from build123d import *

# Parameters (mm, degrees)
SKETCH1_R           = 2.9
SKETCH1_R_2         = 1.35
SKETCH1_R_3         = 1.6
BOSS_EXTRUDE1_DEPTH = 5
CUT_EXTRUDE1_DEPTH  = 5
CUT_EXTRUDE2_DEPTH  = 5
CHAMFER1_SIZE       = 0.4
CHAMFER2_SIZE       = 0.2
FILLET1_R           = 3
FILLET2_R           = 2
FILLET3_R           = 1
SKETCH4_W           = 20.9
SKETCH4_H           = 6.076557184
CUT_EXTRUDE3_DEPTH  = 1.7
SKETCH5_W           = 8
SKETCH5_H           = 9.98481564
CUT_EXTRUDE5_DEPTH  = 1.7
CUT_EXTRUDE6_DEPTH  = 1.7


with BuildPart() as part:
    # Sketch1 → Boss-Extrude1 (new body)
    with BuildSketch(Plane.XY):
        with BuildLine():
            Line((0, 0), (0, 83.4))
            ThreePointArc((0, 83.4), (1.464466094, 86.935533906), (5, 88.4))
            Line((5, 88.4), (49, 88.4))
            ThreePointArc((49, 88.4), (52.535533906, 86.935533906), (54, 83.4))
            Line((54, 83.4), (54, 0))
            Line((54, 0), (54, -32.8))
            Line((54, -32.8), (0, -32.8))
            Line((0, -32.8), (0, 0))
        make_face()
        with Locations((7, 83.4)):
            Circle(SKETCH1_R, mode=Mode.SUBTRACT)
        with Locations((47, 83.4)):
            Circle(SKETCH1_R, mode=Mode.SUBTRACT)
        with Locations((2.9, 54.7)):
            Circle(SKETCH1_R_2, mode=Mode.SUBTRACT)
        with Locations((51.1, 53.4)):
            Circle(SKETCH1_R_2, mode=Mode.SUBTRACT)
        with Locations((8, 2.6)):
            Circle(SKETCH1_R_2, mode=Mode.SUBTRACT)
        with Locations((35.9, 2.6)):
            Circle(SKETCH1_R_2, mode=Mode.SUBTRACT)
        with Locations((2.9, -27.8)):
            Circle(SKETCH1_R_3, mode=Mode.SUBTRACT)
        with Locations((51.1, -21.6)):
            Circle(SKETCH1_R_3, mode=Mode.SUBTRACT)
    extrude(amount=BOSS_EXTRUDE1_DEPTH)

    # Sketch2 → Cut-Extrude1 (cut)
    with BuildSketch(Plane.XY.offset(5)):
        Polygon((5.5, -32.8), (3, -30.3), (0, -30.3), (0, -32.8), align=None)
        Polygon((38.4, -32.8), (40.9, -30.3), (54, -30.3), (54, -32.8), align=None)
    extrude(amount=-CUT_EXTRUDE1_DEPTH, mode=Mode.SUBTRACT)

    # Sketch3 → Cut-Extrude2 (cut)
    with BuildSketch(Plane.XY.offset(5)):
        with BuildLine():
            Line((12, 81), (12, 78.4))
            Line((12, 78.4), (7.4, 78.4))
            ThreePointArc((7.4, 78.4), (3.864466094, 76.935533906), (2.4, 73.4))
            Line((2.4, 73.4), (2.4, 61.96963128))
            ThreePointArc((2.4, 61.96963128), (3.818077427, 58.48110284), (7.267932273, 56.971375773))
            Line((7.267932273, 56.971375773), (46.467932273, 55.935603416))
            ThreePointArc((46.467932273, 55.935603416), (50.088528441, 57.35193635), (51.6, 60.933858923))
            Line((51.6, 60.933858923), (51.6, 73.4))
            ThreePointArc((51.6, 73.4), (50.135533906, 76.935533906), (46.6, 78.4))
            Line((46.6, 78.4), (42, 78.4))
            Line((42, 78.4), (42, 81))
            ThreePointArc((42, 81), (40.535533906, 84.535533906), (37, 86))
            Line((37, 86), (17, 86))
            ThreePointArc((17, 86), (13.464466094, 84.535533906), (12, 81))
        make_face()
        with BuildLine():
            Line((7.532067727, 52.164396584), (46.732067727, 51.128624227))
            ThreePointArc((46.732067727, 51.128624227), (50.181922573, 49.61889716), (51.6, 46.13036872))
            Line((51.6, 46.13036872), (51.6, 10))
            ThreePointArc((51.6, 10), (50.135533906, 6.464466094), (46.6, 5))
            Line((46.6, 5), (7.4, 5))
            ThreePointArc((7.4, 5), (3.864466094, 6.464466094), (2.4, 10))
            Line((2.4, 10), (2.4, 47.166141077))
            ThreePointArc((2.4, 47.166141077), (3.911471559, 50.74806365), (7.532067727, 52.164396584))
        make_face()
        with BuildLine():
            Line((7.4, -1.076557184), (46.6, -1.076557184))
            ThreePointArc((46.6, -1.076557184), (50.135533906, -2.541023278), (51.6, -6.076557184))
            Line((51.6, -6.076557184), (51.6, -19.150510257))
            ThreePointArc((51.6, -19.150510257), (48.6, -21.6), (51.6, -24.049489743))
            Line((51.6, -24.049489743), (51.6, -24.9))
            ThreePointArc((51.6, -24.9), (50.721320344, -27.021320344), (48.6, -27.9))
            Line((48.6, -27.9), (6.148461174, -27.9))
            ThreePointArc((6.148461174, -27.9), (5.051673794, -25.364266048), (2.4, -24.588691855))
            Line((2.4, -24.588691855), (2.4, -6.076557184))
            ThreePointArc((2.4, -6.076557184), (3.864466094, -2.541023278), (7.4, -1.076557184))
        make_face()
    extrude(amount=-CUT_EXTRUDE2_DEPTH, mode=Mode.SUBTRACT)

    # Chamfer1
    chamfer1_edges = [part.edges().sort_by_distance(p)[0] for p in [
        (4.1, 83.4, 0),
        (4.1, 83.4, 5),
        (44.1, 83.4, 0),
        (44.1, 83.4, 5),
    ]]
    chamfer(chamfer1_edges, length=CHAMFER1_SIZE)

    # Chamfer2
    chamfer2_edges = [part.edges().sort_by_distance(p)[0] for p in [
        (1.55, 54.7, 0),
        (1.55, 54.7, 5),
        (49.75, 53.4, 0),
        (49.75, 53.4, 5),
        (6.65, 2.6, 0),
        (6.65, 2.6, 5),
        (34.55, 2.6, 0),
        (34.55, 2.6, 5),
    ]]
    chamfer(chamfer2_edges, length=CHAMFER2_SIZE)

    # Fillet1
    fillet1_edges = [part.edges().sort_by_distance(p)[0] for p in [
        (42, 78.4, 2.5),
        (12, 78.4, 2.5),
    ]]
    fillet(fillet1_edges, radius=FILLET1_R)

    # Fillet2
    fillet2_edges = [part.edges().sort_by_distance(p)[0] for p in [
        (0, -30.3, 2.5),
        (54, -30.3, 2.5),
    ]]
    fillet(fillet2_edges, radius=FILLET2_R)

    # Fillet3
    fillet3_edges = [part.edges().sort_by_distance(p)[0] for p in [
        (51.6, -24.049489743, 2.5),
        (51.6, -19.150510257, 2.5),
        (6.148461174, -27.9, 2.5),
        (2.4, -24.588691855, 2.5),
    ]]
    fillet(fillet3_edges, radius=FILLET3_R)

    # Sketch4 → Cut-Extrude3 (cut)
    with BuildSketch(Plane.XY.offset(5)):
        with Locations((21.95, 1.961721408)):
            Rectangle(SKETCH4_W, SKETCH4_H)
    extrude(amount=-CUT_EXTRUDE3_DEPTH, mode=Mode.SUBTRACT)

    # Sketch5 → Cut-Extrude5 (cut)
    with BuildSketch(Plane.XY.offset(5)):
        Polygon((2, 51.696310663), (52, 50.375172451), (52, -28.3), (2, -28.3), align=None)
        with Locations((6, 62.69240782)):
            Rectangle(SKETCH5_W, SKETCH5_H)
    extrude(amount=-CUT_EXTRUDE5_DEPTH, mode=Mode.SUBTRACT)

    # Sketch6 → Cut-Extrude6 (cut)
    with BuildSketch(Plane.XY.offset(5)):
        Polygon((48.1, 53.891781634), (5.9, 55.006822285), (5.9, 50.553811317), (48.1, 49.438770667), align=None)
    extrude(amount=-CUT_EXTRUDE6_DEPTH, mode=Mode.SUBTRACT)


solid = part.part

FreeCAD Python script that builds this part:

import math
import FreeCAD as App
import Part
import Sketcher
from FreeCAD import Vector
Q = App.Units.Quantity


def edges_at(feature, points):
    """Names of the edges that pass closest to the given points."""
    edges = feature.Shape.Edges
    near = lambda p: min(range(len(edges)), key=lambda i: edges[i].distToShape(Part.Vertex(*p))[0])
    return sorted({f"Edge{near(p) + 1}" for p in points})

doc = App.newDocument("Part")
body = doc.addObject("PartDesign::Body", "Body")

# Sketch on XY plane
sketch1 = doc.addObject("Sketcher::SketchObject", "Sketch")
body.addObject(sketch1)
sketch1.AttachmentSupport = (doc.XY_Plane, [""])
sketch1.MapMode = "FlatFace"
sketch1.addGeometry(Part.ArcOfCircle(Part.Circle(Vector(5, 83.4, 0), Vector(0, 0, 1), 5), math.radians(90), math.radians(180)), False)
sketch1.addGeometry(Part.LineSegment(Vector(0, 83.4, 0), Vector(0, -32.8, 0)), False)
sketch1.addGeometry(Part.LineSegment(Vector(0, -32.8, 0), Vector(54, -32.8, 0)), False)
sketch1.addGeometry(Part.LineSegment(Vector(54, -32.8, 0), Vector(54, 83.4, 0)), False)
sketch1.addGeometry(Part.ArcOfCircle(Part.Circle(Vector(49, 83.4, 0), Vector(0, 0, 1), 5), math.radians(0), math.radians(90)), False)
sketch1.addGeometry(Part.LineSegment(Vector(49, 88.4, 0), Vector(5, 88.4, 0)), False)
sketch1.addGeometry(Part.Circle(Vector(51.1, -21.6, 0), Vector(0, 0, 1), 1.6), False)
sketch1.addGeometry(Part.Circle(Vector(35.9, 2.6, 0), Vector(0, 0, 1), 1.4), False)
sketch1.addGeometry(Part.Circle(Vector(2.9, -27.8, 0), Vector(0, 0, 1), 1.6), False)
sketch1.addGeometry(Part.Circle(Vector(8, 2.6, 0), Vector(0, 0, 1), 1.4), False)
sketch1.addGeometry(Part.Circle(Vector(51.1, 53.4, 0), Vector(0, 0, 1), 1.4), False)
sketch1.addGeometry(Part.Circle(Vector(47, 83.4, 0), Vector(0, 0, 1), 2.9), False)
sketch1.addGeometry(Part.Circle(Vector(2.9, 54.7, 0), Vector(0, 0, 1), 1.4), False)
sketch1.addGeometry(Part.Circle(Vector(7, 83.4, 0), Vector(0, 0, 1), 2.9), False)
sketch1.addConstraint(Sketcher.Constraint("Tangent", 0, 2, 1, 1))
sketch1.addConstraint(Sketcher.Constraint("Coincident", 1, 2, 2, 1))
sketch1.addConstraint(Sketcher.Constraint("Coincident", 2, 2, 3, 1))
sketch1.addConstraint(Sketcher.Constraint("Tangent", 3, 2, 4, 1))
sketch1.addConstraint(Sketcher.Constraint("Tangent", 4, 2, 5, 1))
sketch1.addConstraint(Sketcher.Constraint("Tangent", 5, 2, 0, 1))
sketch1.addConstraint(Sketcher.Constraint("Vertical", 1))
sketch1.addConstraint(Sketcher.Constraint("Horizontal", 2))
sketch1.addConstraint(Sketcher.Constraint("Vertical", 3))
sketch1.addConstraint(Sketcher.Constraint("Horizontal", 5))
sketch1.addConstraint(Sketcher.Constraint("Equal", 0, 4))
sketch1.addConstraint(Sketcher.Constraint("Equal", 6, 8))
sketch1.addConstraint(Sketcher.Constraint("Equal", 7, 9))
sketch1.addConstraint(Sketcher.Constraint("Equal", 9, 10))
sketch1.addConstraint(Sketcher.Constraint("Equal", 10, 12))
sketch1.addConstraint(Sketcher.Constraint("Equal", 11, 13))
sketch1.addConstraint(Sketcher.Constraint("PointOnObject", 0, 2, -2))
sketch1.addConstraint(Sketcher.Constraint("Horizontal", 7, 3, 9, 3))
sketch1.addConstraint(Sketcher.Constraint("Horizontal", 4, 3, 11, 3))
sketch1.addConstraint(Sketcher.Constraint("Horizontal", 11, 3, 13, 3))
sketch1.addConstraint(Sketcher.Constraint("Vertical", 6, 3, 10, 3))
sketch1.addConstraint(Sketcher.Constraint("Vertical", 8, 3, 12, 3))
sketch1.addConstraint(Sketcher.Constraint("Radius", 0, Q("5 mm")))
sketch1.addConstraint(Sketcher.Constraint("Diameter", 6, Q("3.2 mm")))
sketch1.addConstraint(Sketcher.Constraint("Diameter", 7, Q("2.7 mm")))
sketch1.addConstraint(Sketcher.Constraint("Diameter", 11, Q("5.8 mm")))
sketch1.addConstraint(Sketcher.Constraint("DistanceX", 2, 1, 2, 2, Q("54 mm")))
sketch1.addConstraint(Sketcher.Constraint("DistanceY", 1, 2, 1, 1, Q("116.2 mm")))
sketch1.addConstraint(Sketcher.Constraint("DistanceX", -1, 1, 9, 3, Q("8 mm")))
sketch1.addConstraint(Sketcher.Constraint("DistanceX", -1, 1, 11, 3, Q("47 mm")))
sketch1.addConstraint(Sketcher.Constraint("DistanceX", -1, 1, 13, 3, Q("7 mm")))
sketch1.addConstraint(Sketcher.Constraint("DistanceY", 6, 3, 4, 3, Q("105 mm")))
sketch1.addConstraint(Sketcher.Constraint("DistanceX", 8, 3, 7, 3, Q("33 mm")))
sketch1.addConstraint(Sketcher.Constraint("DistanceY", 10, 3, 4, 3, Q("30 mm")))
sketch1.addConstraint(Sketcher.Constraint("DistanceY", 1, 2, 8, 3, Q("5 mm")))
sketch1.addConstraint(Sketcher.Constraint("DistanceY", -1, 1, 0, 3, Q("83.4 mm")))
sketch1.addConstraint(Sketcher.Constraint("DistanceX", -1, 1, 6, 3, Q("51.1 mm")))
sketch1.addConstraint(Sketcher.Constraint("DistanceX", -1, 1, 7, 3, Q("35.9 mm")))
sketch1.addConstraint(Sketcher.Constraint("DistanceY", -1, 1, 7, 3, Q("2.6 mm")))
sketch1.addConstraint(Sketcher.Constraint("DistanceY", -1, 1, 12, 3, Q("54.7 mm")))
pad1 = doc.addObject("PartDesign::Pad", "Pad")
body.addObject(pad1)
pad1.Profile = sketch1
pad1.Length = 5

# Sketch on XY plane
sketch2 = doc.addObject("Sketcher::SketchObject", "Sketch001")
body.addObject(sketch2)
sketch2.AttachmentSupport = (doc.XY_Plane, [""])
sketch2.MapMode = "FlatFace"
sketch2.AttachmentOffset = App.Placement(Vector(0, 0, 5), App.Rotation())
sketch2.addGeometry(Part.LineSegment(Vector(5.5, -32.8, 0), Vector(3, -30.3, 0)), False)
sketch2.addGeometry(Part.LineSegment(Vector(3, -30.3, 0), Vector(0, -30.3, 0)), False)
sketch2.addGeometry(Part.LineSegment(Vector(0, -30.3, 0), Vector(0, -32.8, 0)), False)
sketch2.addGeometry(Part.LineSegment(Vector(0, -32.8, 0), Vector(5.5, -32.8, 0)), False)
sketch2.addGeometry(Part.LineSegment(Vector(40.9, -30.3, 0), Vector(38.4, -32.8, 0)), False)
sketch2.addGeometry(Part.LineSegment(Vector(38.4, -32.8, 0), Vector(54, -32.8, 0)), False)
sketch2.addGeometry(Part.LineSegment(Vector(54, -32.8, 0), Vector(54, -30.3, 0)), False)
sketch2.addGeometry(Part.LineSegment(Vector(54, -30.3, 0), Vector(40.9, -30.3, 0)), False)
sketch2.addConstraint(Sketcher.Constraint("Coincident", 0, 2, 1, 1))
sketch2.addConstraint(Sketcher.Constraint("Coincident", 1, 2, 2, 1))
sketch2.addConstraint(Sketcher.Constraint("Coincident", 2, 2, 3, 1))
sketch2.addConstraint(Sketcher.Constraint("Coincident", 3, 2, 0, 1))
sketch2.addConstraint(Sketcher.Constraint("Coincident", 4, 2, 5, 1))
sketch2.addConstraint(Sketcher.Constraint("Coincident", 5, 2, 6, 1))
sketch2.addConstraint(Sketcher.Constraint("Coincident", 6, 2, 7, 1))
sketch2.addConstraint(Sketcher.Constraint("Coincident", 7, 2, 4, 1))
sketch2.addConstraint(Sketcher.Constraint("Horizontal", 1))
sketch2.addConstraint(Sketcher.Constraint("Vertical", 2))
sketch2.addConstraint(Sketcher.Constraint("Horizontal", 3))
sketch2.addConstraint(Sketcher.Constraint("Horizontal", 5))
sketch2.addConstraint(Sketcher.Constraint("Vertical", 6))
sketch2.addConstraint(Sketcher.Constraint("Horizontal", 7))
sketch2.addConstraint(Sketcher.Constraint("PointOnObject", 1, 2, -2))
sketch2.addConstraint(Sketcher.Constraint("Perpendicular", 0, 4))
sketch2.addConstraint(Sketcher.Constraint("Horizontal", 3, 2, 4, 2))
sketch2.addConstraint(Sketcher.Constraint("Horizontal", 1, 2, 6, 2))
sketch2.addConstraint(Sketcher.Constraint("Equal", 0, 4))
sketch2.addConstraint(Sketcher.Constraint("DistanceX", 1, 2, 1, 1, Q("3 mm")))
sketch2.addConstraint(Sketcher.Constraint("DistanceX", 3, 1, 3, 2, Q("5.5 mm")))
sketch2.addConstraint(Sketcher.Constraint("DistanceX", 5, 1, 5, 2, Q("15.6 mm")))
sketch2.addConstraint(Sketcher.Constraint("DistanceX", -1, 1, 5, 2, Q("54 mm")))
sketch2.addConstraint(Sketcher.Constraint("DistanceY", 0, 2, -1, 1, Q("30.3 mm")))
pocket1 = doc.addObject("PartDesign::Pocket", "Pocket")
body.addObject(pocket1)
pocket1.Profile = sketch2
pocket1.Length = 5

# Sketch on XY plane
sketch3 = doc.addObject("Sketcher::SketchObject", "Sketch002")
body.addObject(sketch3)
sketch3.AttachmentSupport = (doc.XY_Plane, [""])
sketch3.MapMode = "FlatFace"
sketch3.AttachmentOffset = App.Placement(Vector(0, 0, 5), App.Rotation())
sketch3.addGeometry(Part.LineSegment(Vector(12, 81, 0), Vector(12, 78.4, 0)), False)
sketch3.addGeometry(Part.LineSegment(Vector(12, 78.4, 0), Vector(7.4, 78.4, 0)), False)
sketch3.addGeometry(Part.ArcOfCircle(Part.Circle(Vector(7.4, 73.4, 0), Vector(0, 0, 1), 5), math.radians(90), math.radians(180)), False)
sketch3.addGeometry(Part.LineSegment(Vector(2.4, 73.4, 0), Vector(2.4, 62, 0)), False)
sketch3.addGeometry(Part.ArcOfCircle(Part.Circle(Vector(7.4, 62, 0), Vector(0, 0, 1), 5), math.radians(-180), math.radians(-92)), False)
sketch3.addGeometry(Part.LineSegment(Vector(7.3, 57, 0), Vector(46.5, 55.9, 0)), False)
sketch3.addGeometry(Part.ArcOfCircle(Part.Circle(Vector(46.6, 60.9, 0), Vector(0, 0, 1), 5), math.radians(-92), math.radians(0)), False)
sketch3.addGeometry(Part.LineSegment(Vector(51.6, 60.9, 0), Vector(51.6, 73.4, 0)), False)
sketch3.addGeometry(Part.ArcOfCircle(Part.Circle(Vector(46.6, 73.4, 0), Vector(0, 0, 1), 5), math.radians(0), math.radians(90)), False)
sketch3.addGeometry(Part.LineSegment(Vector(46.6, 78.4, 0), Vector(42, 78.4, 0)), False)
sketch3.addGeometry(Part.LineSegment(Vector(42, 78.4, 0), Vector(42, 81, 0)), False)
sketch3.addGeometry(Part.ArcOfCircle(Part.Circle(Vector(37, 81, 0), Vector(0, 0, 1), 5), math.radians(0), math.radians(90)), False)
sketch3.addGeometry(Part.LineSegment(Vector(37, 86, 0), Vector(17, 86, 0)), False)
sketch3.addGeometry(Part.ArcOfCircle(Part.Circle(Vector(17, 81, 0), Vector(0, 0, 1), 5), math.radians(90), math.radians(180)), False)
sketch3.addGeometry(Part.LineSegment(Vector(46.7, 51.1, 0), Vector(7.5, 52.2, 0)), False)
sketch3.addGeometry(Part.ArcOfCircle(Part.Circle(Vector(7.4, 47.2, 0), Vector(0, 0, 1), 5), math.radians(88), math.radians(180)), False)
sketch3.addGeometry(Part.LineSegment(Vector(2.4, 47.2, 0), Vector(2.4, 10, 0)), False)
sketch3.addGeometry(Part.ArcOfCircle(Part.Circle(Vector(7.4, 10, 0), Vector(0, 0, 1), 5), math.radians(180), math.radians(270)), False)
sketch3.addGeometry(Part.LineSegment(Vector(7.4, 5, 0), Vector(46.6, 5, 0)), False)
sketch3.addGeometry(Part.ArcOfCircle(Part.Circle(Vector(46.6, 10, 0), Vector(0, 0, 1), 5), math.radians(-90), math.radians(0)), False)
sketch3.addGeometry(Part.LineSegment(Vector(51.6, 10, 0), Vector(51.6, 46.1, 0)), False)
sketch3.addGeometry(Part.ArcOfCircle(Part.Circle(Vector(46.6, 46.1, 0), Vector(0, 0, 1), 5), math.radians(0), math.radians(88)), False)
sketch3.addGeometry(Part.LineSegment(Vector(46.6, -1.1, 0), Vector(7.4, -1.1, 0)), False)
sketch3.addGeometry(Part.ArcOfCircle(Part.Circle(Vector(7.4, -6.1, 0), Vector(0, 0, 1), 5), math.radians(90), math.radians(180)), False)
sketch3.addGeometry(Part.LineSegment(Vector(2.4, -6.1, 0), Vector(2.4, -24.6, 0)), False)
sketch3.addGeometry(Part.ArcOfCircle(Part.Circle(Vector(2.9, -27.8, 0), Vector(0, 0, 1), 3.2), math.radians(-2), math.radians(99)), False)
sketch3.addGeometry(Part.LineSegment(Vector(6.1, -27.9, 0), Vector(48.6, -27.9, 0)), False)
sketch3.addGeometry(Part.ArcOfCircle(Part.Circle(Vector(48.6, -24.9, 0), Vector(0, 0, 1), 3), math.radians(-90), math.radians(0)), False)
sketch3.addGeometry(Part.LineSegment(Vector(51.6, -24.9, 0), Vector(51.6, -24, 0)), False)
sketch3.addGeometry(Part.ArcOfCircle(Part.Circle(Vector(51.1, -21.6, 0), Vector(0, 0, 1), 2.5), math.radians(78), math.radians(282)), False)
sketch3.addGeometry(Part.LineSegment(Vector(51.6, -19.2, 0), Vector(51.6, -6.1, 0)), False)
sketch3.addGeometry(Part.ArcOfCircle(Part.Circle(Vector(46.6, -6.1, 0), Vector(0, 0, 1), 5), math.radians(0), math.radians(90)), False)
sketch3.addConstraint(Sketcher.Constraint("Coincident", 0, 2, 1, 1))
sketch3.addConstraint(Sketcher.Constraint("Tangent", 1, 2, 2, 1))
sketch3.addConstraint(Sketcher.Constraint("Tangent", 2, 2, 3, 1))
sketch3.addConstraint(Sketcher.Constraint("Tangent", 3, 2, 4, 1))
sketch3.addConstraint(Sketcher.Constraint("Tangent", 4, 2, 5, 1))
sketch3.addConstraint(Sketcher.Constraint("Tangent", 5, 2, 6, 1))
sketch3.addConstraint(Sketcher.Constraint("Tangent", 6, 2, 7, 1))
sketch3.addConstraint(Sketcher.Constraint("Tangent", 7, 2, 8, 1))
sketch3.addConstraint(Sketcher.Constraint("Tangent", 8, 2, 9, 1))
sketch3.addConstraint(Sketcher.Constraint("Coincident", 9, 2, 10, 1))
sketch3.addConstraint(Sketcher.Constraint("Tangent", 10, 2, 11, 1))
sketch3.addConstraint(Sketcher.Constraint("Tangent", 11, 2, 12, 1))
sketch3.addConstraint(Sketcher.Constraint("Tangent", 12, 2, 13, 1))
sketch3.addConstraint(Sketcher.Constraint("Tangent", 13, 2, 0, 1))
sketch3.addConstraint(Sketcher.Constraint("Tangent", 14, 2, 15, 1))
sketch3.addConstraint(Sketcher.Constraint("Tangent", 15, 2, 16, 1))
sketch3.addConstraint(Sketcher.Constraint("Tangent", 16, 2, 17, 1))
sketch3.addConstraint(Sketcher.Constraint("Tangent", 17, 2, 18, 1))
sketch3.addConstraint(Sketcher.Constraint("Tangent", 18, 2, 19, 1))
sketch3.addConstraint(Sketcher.Constraint("Tangent", 19, 2, 20, 1))
sketch3.addConstraint(Sketcher.Constraint("Tangent", 20, 2, 21, 1))
sketch3.addConstraint(Sketcher.Constraint("Tangent", 21, 2, 14, 1))
sketch3.addConstraint(Sketcher.Constraint("Tangent", 22, 2, 23, 1))
sketch3.addConstraint(Sketcher.Constraint("Tangent", 23, 2, 24, 1))
sketch3.addConstraint(Sketcher.Constraint("Coincident", 24, 2, 25, 2))
sketch3.addConstraint(Sketcher.Constraint("Coincident", 25, 1, 26, 1))
sketch3.addConstraint(Sketcher.Constraint("Tangent", 26, 2, 27, 1))
sketch3.addConstraint(Sketcher.Constraint("Tangent", 27, 2, 28, 1))
sketch3.addConstraint(Sketcher.Constraint("Coincident", 28, 2, 29, 2))
sketch3.addConstraint(Sketcher.Constraint("Coincident", 29, 1, 30, 1))
sketch3.addConstraint(Sketcher.Constraint("Tangent", 30, 2, 31, 1))
sketch3.addConstraint(Sketcher.Constraint("Tangent", 31, 2, 22, 1))
sketch3.addConstraint(Sketcher.Constraint("Vertical", 0))
sketch3.addConstraint(Sketcher.Constraint("Horizontal", 1))
sketch3.addConstraint(Sketcher.Constraint("Vertical", 3))
sketch3.addConstraint(Sketcher.Constraint("Vertical", 7))
sketch3.addConstraint(Sketcher.Constraint("Horizontal", 9))
sketch3.addConstraint(Sketcher.Constraint("Vertical", 10))
sketch3.addConstraint(Sketcher.Constraint("Horizontal", 12))
sketch3.addConstraint(Sketcher.Constraint("Vertical", 16))
sketch3.addConstraint(Sketcher.Constraint("Horizontal", 18))
sketch3.addConstraint(Sketcher.Constraint("Vertical", 20))
sketch3.addConstraint(Sketcher.Constraint("Horizontal", 22))
sketch3.addConstraint(Sketcher.Constraint("Vertical", 24))
sketch3.addConstraint(Sketcher.Constraint("Horizontal", 26))
sketch3.addConstraint(Sketcher.Constraint("Vertical", 28))
sketch3.addConstraint(Sketcher.Constraint("Vertical", 30))
sketch3.addConstraint(Sketcher.Constraint("Equal", 2, 4))
sketch3.addConstraint(Sketcher.Constraint("Equal", 4, 6))
sketch3.addConstraint(Sketcher.Constraint("Equal", 6, 8))
sketch3.addConstraint(Sketcher.Constraint("Equal", 8, 11))
sketch3.addConstraint(Sketcher.Constraint("Equal", 11, 13))
sketch3.addConstraint(Sketcher.Constraint("Equal", 13, 15))
sketch3.addConstraint(Sketcher.Constraint("Equal", 15, 17))
sketch3.addConstraint(Sketcher.Constraint("Equal", 17, 19))
sketch3.addConstraint(Sketcher.Constraint("Equal", 19, 21))
sketch3.addConstraint(Sketcher.Constraint("Equal", 21, 23))
sketch3.addConstraint(Sketcher.Constraint("Equal", 23, 31))
sketch3.addConstraint(Sketcher.Constraint("Parallel", 5, 14))
sketch3.addConstraint(Sketcher.Constraint("Horizontal", 2, 3, 8, 3))
sketch3.addConstraint(Sketcher.Constraint("Vertical", 4, 3, 15, 3))
sketch3.addConstraint(Sketcher.Constraint("Vertical", 8, 3, 19, 3))
sketch3.addConstraint(Sketcher.Constraint("Vertical", 17, 3, 23, 3))
sketch3.addConstraint(Sketcher.Constraint("Vertical", 21, 3, 31, 3))
sketch3.addConstraint(Sketcher.Constraint("Vertical", 20, 2, 27, 2))
sketch3.addConstraint(Sketcher.Constraint("Equal", 1, 9))
sketch3.addConstraint(Sketcher.Constraint("Radius", 2, Q("5 mm")))
sketch3.addConstraint(Sketcher.Constraint("Radius", 27, Q("3 mm")))
sketch3.addConstraint(Sketcher.Constraint("Radius", 29, Q("2.5 mm")))
sketch3.addConstraint(Sketcher.Constraint("DistanceX", 12, 2, 12, 1, Q("20 mm")))
sketch3.addConstraint(Sketcher.Constraint("Radius", 25, Q("3.25 mm")))
sketch3.addConstraint(Sketcher.Constraint("DistanceX", 1, 2, 1, 1, Q("4.6 mm")))
sketch3.addConstraint(Sketcher.Constraint("DistanceY", 0, 2, 0, 1, Q("2.6 mm")))
sketch3.addConstraint(Sketcher.Constraint("DistanceX", -1, 1, 11, 3, Q("37 mm")))
sketch3.addConstraint(Sketcher.Constraint("DistanceY", -1, 1, 11, 3, Q("81 mm")))
sketch3.addConstraint(Sketcher.Constraint("DistanceY", -1, 1, 17, 3, Q("10 mm")))
sketch3.addConstraint(Sketcher.Constraint("DistanceX", -1, 1, 25, 3, Q("2.9 mm")))
sketch3.addConstraint(Sketcher.Constraint("DistanceY", 25, 3, -1, 1, Q("27.8 mm")))
sketch3.addConstraint(Sketcher.Constraint("DistanceY", 27, 3, -1, 1, Q("24.9 mm")))
sketch3.addConstraint(Sketcher.Constraint("DistanceX", -1, 1, 29, 3, Q("51.1 mm")))
sketch3.addConstraint(Sketcher.Constraint("DistanceY", 29, 3, -1, 1, Q("21.6 mm")))
sketch3.addConstraint(Sketcher.Constraint("DistanceY", 3, 2, 3, 1, Q("11.430369 mm")))
sketch3.addConstraint(Sketcher.Constraint("DistanceY", 7, 1, 7, 2, Q("12.466141 mm")))
sketch3.addConstraint(Sketcher.Constraint("DistanceY", 16, 2, 16, 1, Q("37.166141 mm")))
sketch3.addConstraint(Sketcher.Constraint("DistanceY", 23, 3, 15, 3, Q("53.242698 mm")))
pocket2 = doc.addObject("PartDesign::Pocket", "Pocket001")
body.addObject(pocket2)
pocket2.Profile = sketch3
pocket2.Length = 5
doc.recompute()

chamfer = doc.addObject("PartDesign::Chamfer", "Chamfer")
body.addObject(chamfer)
chamfer.Base = (pocket2, edges_at(pocket2, [
    (4.1, 83.4, 0),
    (4.1, 83.4, 5),
    (44.1, 83.4, 0),
    (44.1, 83.4, 5),
]))
chamfer.Size = 0.4
doc.recompute()

chamfer2 = doc.addObject("PartDesign::Chamfer", "Chamfer001")
body.addObject(chamfer2)
chamfer2.Base = (chamfer, edges_at(chamfer, [
    (1.55, 54.7, 0),
    (1.55, 54.7, 5),
    (49.75, 53.4, 0),
    (49.75, 53.4, 5),
    (6.65, 2.6, 0),
    (6.65, 2.6, 5),
    (34.55, 2.6, 0),
    (34.55, 2.6, 5),
]))
chamfer2.Size = 0.2
doc.recompute()

fillet = doc.addObject("PartDesign::Fillet", "Fillet")
body.addObject(fillet)
fillet.Base = (chamfer2, edges_at(chamfer2, [(42, 78.4, 2.5), (12, 78.4, 2.5)]))
fillet.Radius = 3
doc.recompute()

fillet2 = doc.addObject("PartDesign::Fillet", "Fillet001")
body.addObject(fillet2)
fillet2.Base = (fillet, edges_at(fillet, [(0, -30.3, 2.5), (54, -30.3, 2.5)]))
fillet2.Radius = 2
doc.recompute()

fillet3 = doc.addObject("PartDesign::Fillet", "Fillet002")
body.addObject(fillet3)
fillet3.Base = (fillet2, edges_at(fillet2, [
    (51.6, -24.049, 2.5),
    (51.6, -19.151, 2.5),
    (6.148, -27.9, 2.5),
    (2.4, -24.589, 2.5),
]))
fillet3.Radius = 1

# Sketch on XY plane
sketch4 = doc.addObject("Sketcher::SketchObject", "Sketch003")
body.addObject(sketch4)
sketch4.AttachmentSupport = (doc.XY_Plane, [""])
sketch4.MapMode = "FlatFace"
sketch4.AttachmentOffset = App.Placement(Vector(0, 0, 5), App.Rotation())
sketch4.addGeometry(Part.LineSegment(Vector(12, 5, 0), Vector(12, -1, 0)), False)
sketch4.addGeometry(Part.LineSegment(Vector(12, -1, 0), Vector(32, -1, 0)), False)
sketch4.addGeometry(Part.LineSegment(Vector(32, -1, 0), Vector(32, 5, 0)), False)
sketch4.addGeometry(Part.LineSegment(Vector(32, 5, 0), Vector(12, 5, 0)), False)
sketch4.addConstraint(Sketcher.Constraint("Coincident", 0, 2, 1, 1))
sketch4.addConstraint(Sketcher.Constraint("Coincident", 1, 2, 2, 1))
sketch4.addConstraint(Sketcher.Constraint("Coincident", 2, 2, 3, 1))
sketch4.addConstraint(Sketcher.Constraint("Coincident", 3, 2, 0, 1))
sketch4.addConstraint(Sketcher.Constraint("Vertical", 0))
sketch4.addConstraint(Sketcher.Constraint("Horizontal", 1))
sketch4.addConstraint(Sketcher.Constraint("Vertical", 2))
sketch4.addConstraint(Sketcher.Constraint("Horizontal", 3))
sketch4.addConstraint(Sketcher.Constraint("DistanceX", 1, 1, 1, 2, Q("20.9 mm")))
sketch4.addConstraint(Sketcher.Constraint("DistanceY", -1, 1, 2, 2, Q("5 mm")))
sketch4.addConstraint(Sketcher.Constraint("DistanceX", -1, 1, 0, 2, Q("11.5 mm")))
sketch4.addConstraint(Sketcher.Constraint("DistanceY", 0, 2, 0, 1, Q("6.076557 mm")))
pocket3 = doc.addObject("PartDesign::Pocket", "Pocket002")
body.addObject(pocket3)
pocket3.Profile = sketch4
pocket3.Length = 1.7

# Sketch on XY plane
sketch5 = doc.addObject("Sketcher::SketchObject", "Sketch004")
body.addObject(sketch5)
sketch5.AttachmentSupport = (doc.XY_Plane, [""])
sketch5.MapMode = "FlatFace"
sketch5.AttachmentOffset = App.Placement(Vector(0, 0, 5), App.Rotation())
sketch5.addGeometry(Part.LineSegment(Vector(52, 50, 0), Vector(2, 52, 0)), False)
sketch5.addGeometry(Part.LineSegment(Vector(2, 52, 0), Vector(2, -28, 0)), False)
sketch5.addGeometry(Part.LineSegment(Vector(2, -28, 0), Vector(52, -28, 0)), False)
sketch5.addGeometry(Part.LineSegment(Vector(52, -28, 0), Vector(52, 50, 0)), False)
sketch5.addGeometry(Part.LineSegment(Vector(2, 68, 0), Vector(2, 58, 0)), False)
sketch5.addGeometry(Part.LineSegment(Vector(2, 58, 0), Vector(10, 58, 0)), False)
sketch5.addGeometry(Part.LineSegment(Vector(10, 58, 0), Vector(10, 68, 0)), False)
sketch5.addGeometry(Part.LineSegment(Vector(10, 68, 0), Vector(2, 68, 0)), False)
sketch5.addConstraint(Sketcher.Constraint("Coincident", 0, 2, 1, 1))
sketch5.addConstraint(Sketcher.Constraint("Coincident", 1, 2, 2, 1))
sketch5.addConstraint(Sketcher.Constraint("Coincident", 2, 2, 3, 1))
sketch5.addConstraint(Sketcher.Constraint("Coincident", 3, 2, 0, 1))
sketch5.addConstraint(Sketcher.Constraint("Coincident", 4, 2, 5, 1))
sketch5.addConstraint(Sketcher.Constraint("Coincident", 5, 2, 6, 1))
sketch5.addConstraint(Sketcher.Constraint("Coincident", 6, 2, 7, 1))
sketch5.addConstraint(Sketcher.Constraint("Coincident", 7, 2, 4, 1))
sketch5.addConstraint(Sketcher.Constraint("Vertical", 1))
sketch5.addConstraint(Sketcher.Constraint("Horizontal", 2))
sketch5.addConstraint(Sketcher.Constraint("Vertical", 3))
sketch5.addConstraint(Sketcher.Constraint("Vertical", 4))
sketch5.addConstraint(Sketcher.Constraint("Horizontal", 5))
sketch5.addConstraint(Sketcher.Constraint("Vertical", 6))
sketch5.addConstraint(Sketcher.Constraint("Horizontal", 7))
sketch5.addConstraint(Sketcher.Constraint("Vertical", 1, 2, 4, 2))
sketch5.addConstraint(Sketcher.Constraint("DistanceX", 2, 1, 2, 2, Q("50 mm")))
sketch5.addConstraint(Sketcher.Constraint("DistanceX", 5, 1, 5, 2, Q("8 mm")))
sketch5.addConstraint(Sketcher.Constraint("DistanceX", -1, 1, 0, 2, Q("2 mm")))
sketch5.addConstraint(Sketcher.Constraint("DistanceY", 1, 2, 4, 2, Q("86 mm")))
sketch5.addConstraint(Sketcher.Constraint("DistanceY", 1, 2, -1, 1, Q("28.3 mm")))
sketch5.addConstraint(Sketcher.Constraint("DistanceY", 1, 2, 1, 1, Q("79.996311 mm")))
sketch5.addConstraint(Sketcher.Constraint("Distance", 0, Q("50.017451 mm")))
sketch5.addConstraint(Sketcher.Constraint("DistanceY", 4, 2, 4, 1, Q("9.984816 mm")))
pocket4 = doc.addObject("PartDesign::Pocket", "Pocket003")
body.addObject(pocket4)
pocket4.Profile = sketch5
pocket4.Length = 1.7

# Sketch on XY plane
sketch6 = doc.addObject("Sketcher::SketchObject", "Sketch005")
body.addObject(sketch6)
sketch6.AttachmentSupport = (doc.XY_Plane, [""])
sketch6.MapMode = "FlatFace"
sketch6.AttachmentOffset = App.Placement(Vector(0, 0, 5), App.Rotation())
sketch6.addGeometry(Part.LineSegment(Vector(48.1, 53.9, 0), Vector(5.9, 55, 0)), False)
sketch6.addGeometry(Part.LineSegment(Vector(5.9, 55, 0), Vector(5.9, 50.6, 0)), False)
sketch6.addGeometry(Part.LineSegment(Vector(5.9, 50.6, 0), Vector(48.1, 49.4, 0)), False)
sketch6.addGeometry(Part.LineSegment(Vector(48.1, 49.4, 0), Vector(48.1, 53.9, 0)), False)
sketch6.addConstraint(Sketcher.Constraint("Coincident", 0, 2, 1, 1))
sketch6.addConstraint(Sketcher.Constraint("Coincident", 1, 2, 2, 1))
sketch6.addConstraint(Sketcher.Constraint("Coincident", 2, 2, 3, 1))
sketch6.addConstraint(Sketcher.Constraint("Coincident", 3, 2, 0, 1))
sketch6.addConstraint(Sketcher.Constraint("Vertical", 1))
sketch6.addConstraint(Sketcher.Constraint("Vertical", 3))
sketch6.addConstraint(Sketcher.Constraint("Parallel", 0, 2))
sketch6.addConstraint(Sketcher.Constraint("DistanceX", -1, 1, 0, 2, Q("5.9 mm")))
sketch6.addConstraint(Sketcher.Constraint("DistanceX", -1, 1, 2, 2, Q("48.1 mm")))
sketch6.addConstraint(Sketcher.Constraint("DistanceY", 1, 2, 1, 1, Q("4.453011 mm")))
sketch6.addConstraint(Sketcher.Constraint("Distance", 0, Q("42.214729 mm")))
sketch6.addConstraint(Sketcher.Constraint("DistanceY", -1, 1, 1, 2, Q("50.553811 mm")))
pocket5 = doc.addObject("PartDesign::Pocket", "Pocket004")
body.addObject(pocket5)
pocket5.Profile = sketch6
pocket5.Length = 1.7

doc.recompute()
